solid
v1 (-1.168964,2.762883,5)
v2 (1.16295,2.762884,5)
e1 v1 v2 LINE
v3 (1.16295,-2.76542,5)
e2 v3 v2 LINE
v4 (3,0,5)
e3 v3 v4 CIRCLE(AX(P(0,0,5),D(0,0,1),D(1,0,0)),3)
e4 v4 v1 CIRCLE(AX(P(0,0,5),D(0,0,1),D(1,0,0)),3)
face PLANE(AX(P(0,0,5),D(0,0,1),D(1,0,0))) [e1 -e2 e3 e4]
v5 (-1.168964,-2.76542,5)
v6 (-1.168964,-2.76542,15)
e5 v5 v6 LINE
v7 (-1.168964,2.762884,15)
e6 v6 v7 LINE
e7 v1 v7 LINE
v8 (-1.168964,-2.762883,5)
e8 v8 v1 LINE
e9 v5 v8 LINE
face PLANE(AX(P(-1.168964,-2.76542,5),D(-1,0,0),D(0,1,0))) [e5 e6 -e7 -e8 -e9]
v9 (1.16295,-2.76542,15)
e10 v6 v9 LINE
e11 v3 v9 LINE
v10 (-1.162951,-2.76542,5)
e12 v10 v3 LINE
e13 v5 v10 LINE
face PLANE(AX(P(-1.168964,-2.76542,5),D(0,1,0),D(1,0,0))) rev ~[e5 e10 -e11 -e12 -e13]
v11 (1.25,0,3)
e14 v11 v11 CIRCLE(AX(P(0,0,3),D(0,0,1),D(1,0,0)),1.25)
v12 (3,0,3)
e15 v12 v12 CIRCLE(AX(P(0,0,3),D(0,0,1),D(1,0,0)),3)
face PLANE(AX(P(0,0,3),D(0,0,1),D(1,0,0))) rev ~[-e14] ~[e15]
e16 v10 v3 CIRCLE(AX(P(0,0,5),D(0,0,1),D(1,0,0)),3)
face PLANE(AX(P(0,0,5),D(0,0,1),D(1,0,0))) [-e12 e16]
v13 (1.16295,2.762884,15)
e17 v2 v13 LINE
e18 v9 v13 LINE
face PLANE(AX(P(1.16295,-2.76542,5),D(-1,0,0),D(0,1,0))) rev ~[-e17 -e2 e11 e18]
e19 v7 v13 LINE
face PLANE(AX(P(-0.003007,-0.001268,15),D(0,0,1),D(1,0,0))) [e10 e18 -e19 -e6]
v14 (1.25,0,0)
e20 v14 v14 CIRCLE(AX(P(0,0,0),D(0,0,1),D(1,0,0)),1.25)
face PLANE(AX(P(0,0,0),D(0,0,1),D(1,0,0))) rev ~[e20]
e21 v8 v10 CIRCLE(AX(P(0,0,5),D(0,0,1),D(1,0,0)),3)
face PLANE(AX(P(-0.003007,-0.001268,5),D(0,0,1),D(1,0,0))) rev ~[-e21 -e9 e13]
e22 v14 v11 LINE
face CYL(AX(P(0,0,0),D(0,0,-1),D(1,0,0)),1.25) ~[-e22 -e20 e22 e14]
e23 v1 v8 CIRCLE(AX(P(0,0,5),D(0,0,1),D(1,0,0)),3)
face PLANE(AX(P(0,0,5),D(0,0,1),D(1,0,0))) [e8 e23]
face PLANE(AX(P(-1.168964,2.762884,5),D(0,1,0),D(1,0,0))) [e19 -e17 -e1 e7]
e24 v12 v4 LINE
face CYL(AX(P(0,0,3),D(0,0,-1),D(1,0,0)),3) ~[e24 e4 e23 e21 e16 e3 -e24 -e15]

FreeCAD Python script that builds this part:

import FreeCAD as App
import Part
import Sketcher

V = App.Vector
Q = App.Units.Quantity

doc = App.newDocument("Part")
body = doc.addObject("PartDesign::Body", "Body")

# Sketch on XY plane
sketch1 = body.newObject("Sketcher::SketchObject", "Sketch")
sketch1.AttachmentSupport = (doc.getObject("XY_Plane"), [""])
sketch1.MapMode = "FlatFace"
sketch1.addGeometry(Part.Circle(V(0, 0, 0), V(0, 0, 1), 1.2), False)
sketch1.addConstraint(Sketcher.Constraint("Coincident", 0, 3, -1, 1))
sketch1.addConstraint(Sketcher.Constraint("Diameter", 0, Q("2.5 mm")))
pad1 = body.newObject("PartDesign::Pad", "Pad")
pad1.Profile = sketch1
pad1.Length = 3

# Sketch on XY plane
sketch2 = body.newObject("Sketcher::SketchObject", "Sketch001")
sketch2.AttachmentSupport = (doc.getObject("XY_Plane"), [""])
sketch2.MapMode = "FlatFace"
sketch2.AttachmentOffset = App.Placement(V(0, 0, 3), App.Rotation())
sketch2.addGeometry(Part.Circle(V(0, 0, 0), V(0, 0, 1), 3), False)
sketch2.addConstraint(Sketcher.Constraint("Coincident", 0, 3, -1, 1))
sketch2.addConstraint(Sketcher.Constraint("Diameter", 0, Q("6 mm")))
pad2 = body.newObject("PartDesign::Pad", "Pad001")
pad2.Profile = sketch2
pad2.Length = 2

# Sketch on XY plane
sketch3 = body.newObject("Sketcher::SketchObject", "Sketch002")
sketch3.AttachmentSupport = (doc.getObject("XY_Plane"), [""])
sketch3.MapMode = "FlatFace"
sketch3.AttachmentOffset = App.Placement(V(0, 0, 5), App.Rotation())
sketch3.addGeometry(Part.LineSegment(V(-1.2, 2.8, 0), V(-1.2, -2.8, 0)), False)
sketch3.addGeometry(Part.LineSegment(V(-1.2, -2.8, 0), V(1.2, -2.8, 0)), False)
sketch3.addGeometry(Part.LineSegment(V(1.2, -2.8, 0), V(1.2, 2.8, 0)), False)
sketch3.addGeometry(Part.LineSegment(V(1.2, 2.8, 0), V(-1.2, 2.8, 0)), False)
sketch3.addConstraint(Sketcher.Constraint("Coincident", 0, 2, 1, 1))
sketch3.addConstraint(Sketcher.Constraint("Coincident", 1, 2, 2, 1))
sketch3.addConstraint(Sketcher.Constraint("Coincident", 2, 2, 3, 1))
sketch3.addConstraint(Sketcher.Constraint("Coincident", 3, 2, 0, 1))
sketch3.addConstraint(Sketcher.Constraint("Vertical", 0))
sketch3.addConstraint(Sketcher.Constraint("Horizontal", 1))
sketch3.addConstraint(Sketcher.Constraint("Vertical", 2))
sketch3.addConstraint(Sketcher.Constraint("Horizontal", 3))
sketch3.addConstraint(Sketcher.Constraint("DistanceX", 1, 1, 1, 2, Q("2.331915 mm")))
sketch3.addConstraint(Sketcher.Constraint("DistanceY", 0, 2, 0, 1, Q("5.528303 mm")))
sketch3.addConstraint(Sketcher.Constraint("DistanceY", 0, 2, -1, 1, Q("2.76542 mm")))
sketch3.addConstraint(Sketcher.Constraint("DistanceX", -1, 1, 1, 2, Q("1.16295 mm")))
pad3 = body.newObject("PartDesign::Pad", "Pad002")
pad3.Profile = sketch3
pad3.Length = 10

doc.recompute()
